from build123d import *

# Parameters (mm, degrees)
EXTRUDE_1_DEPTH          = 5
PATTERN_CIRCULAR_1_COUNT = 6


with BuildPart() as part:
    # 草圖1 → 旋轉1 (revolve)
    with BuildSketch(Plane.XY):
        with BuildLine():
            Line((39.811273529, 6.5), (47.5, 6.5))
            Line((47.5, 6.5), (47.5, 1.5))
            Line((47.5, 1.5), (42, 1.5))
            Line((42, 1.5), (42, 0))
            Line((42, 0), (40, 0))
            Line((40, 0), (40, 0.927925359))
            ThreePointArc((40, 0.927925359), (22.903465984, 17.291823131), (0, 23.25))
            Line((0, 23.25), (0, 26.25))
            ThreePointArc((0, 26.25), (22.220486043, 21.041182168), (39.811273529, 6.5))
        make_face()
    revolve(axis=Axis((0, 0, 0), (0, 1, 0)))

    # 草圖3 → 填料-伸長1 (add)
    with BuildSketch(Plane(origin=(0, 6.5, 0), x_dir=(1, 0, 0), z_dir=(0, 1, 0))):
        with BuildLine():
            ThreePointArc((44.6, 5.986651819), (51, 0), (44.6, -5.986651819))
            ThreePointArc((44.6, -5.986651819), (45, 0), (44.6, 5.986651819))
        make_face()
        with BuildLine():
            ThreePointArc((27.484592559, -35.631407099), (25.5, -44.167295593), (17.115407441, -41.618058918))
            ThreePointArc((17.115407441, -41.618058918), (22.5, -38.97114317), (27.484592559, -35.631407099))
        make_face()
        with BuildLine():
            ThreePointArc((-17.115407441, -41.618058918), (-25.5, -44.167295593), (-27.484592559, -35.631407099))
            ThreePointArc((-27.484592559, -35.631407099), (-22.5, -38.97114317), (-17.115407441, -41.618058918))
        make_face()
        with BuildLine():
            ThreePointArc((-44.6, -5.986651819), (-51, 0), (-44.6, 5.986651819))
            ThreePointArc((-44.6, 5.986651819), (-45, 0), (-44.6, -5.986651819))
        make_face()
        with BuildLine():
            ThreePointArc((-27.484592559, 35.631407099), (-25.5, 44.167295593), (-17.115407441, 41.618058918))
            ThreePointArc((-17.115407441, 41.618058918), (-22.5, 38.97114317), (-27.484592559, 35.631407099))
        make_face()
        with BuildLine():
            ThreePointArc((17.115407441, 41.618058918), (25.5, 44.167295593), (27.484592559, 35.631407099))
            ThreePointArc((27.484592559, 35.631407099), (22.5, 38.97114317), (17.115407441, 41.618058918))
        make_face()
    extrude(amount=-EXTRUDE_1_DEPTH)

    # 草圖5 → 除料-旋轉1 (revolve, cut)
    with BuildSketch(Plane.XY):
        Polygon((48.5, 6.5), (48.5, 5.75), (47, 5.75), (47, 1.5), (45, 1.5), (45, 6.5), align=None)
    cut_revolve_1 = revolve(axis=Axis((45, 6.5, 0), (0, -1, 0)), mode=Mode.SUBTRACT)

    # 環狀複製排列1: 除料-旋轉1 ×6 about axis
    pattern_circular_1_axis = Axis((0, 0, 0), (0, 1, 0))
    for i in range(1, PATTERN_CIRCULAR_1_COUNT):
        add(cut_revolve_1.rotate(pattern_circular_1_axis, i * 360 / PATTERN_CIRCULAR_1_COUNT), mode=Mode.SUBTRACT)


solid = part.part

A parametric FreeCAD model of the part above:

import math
import FreeCAD as App
import Part
import Sketcher
Q = App.Units.Quantity

doc = App.newDocument("Part")
params = doc.addObject("Spreadsheet::Sheet", "Params")
for row, (alias, value) in enumerate([
    ("sketch1_radius", "50 mm"),
    ("sketch1_radius2", "47 mm"),
    ("sketch1_width", "2 mm"),
    ("sketch1_height", "5 mm"),
    ("sketch1_width2", "5.5 mm"),
    ("revolution_angle", "360 deg"),
    ("sketch2_radius", "6 mm"),
    ("sketch2_radius2", "45 mm"),
    ("pad1_length", "5 mm"),
    ("sketch3_width", "2 mm"),
    ("sketch3_height", "5 mm"),
    ("sketch3_width2", "3.5 mm"),
    ("sketch3_height2", "0.75 mm"),
    ("groove_angle", "360 deg"),
], start=1):
    params.set(f"A{row}", alias)
    params.set(f"B{row}", "=" + value)
    params.setAlias(f"B{row}", alias)

body = doc.addObject("PartDesign::Body", "Body")

# Sketch on XY plane
sketch1 = body.newObject("Sketcher::SketchObject", "Sketch")
sketch1.AttachmentSupport = (doc.getObject("XY_Plane"), [""])
sketch1.MapMode = "FlatFace"
sketch1.addGeometry(Part.LineSegment(App.Vector(47.5, 6.5, 0), App.Vector(39.8, 6.5, 0)), False)
sketch1.addGeometry(Part.ArcOfCircle(Part.Circle(App.Vector(0, -23.8, 0), App.Vector(0, 0, 1), 50), math.radians(37), math.radians(90)), False)
sketch1.addGeometry(Part.LineSegment(App.Vector(0, 26.2, 0), App.Vector(0, 23.2, 0)), False)
sketch1.addGeometry(Part.ArcOfCircle(Part.Circle(App.Vector(0, -23.8, 0), App.Vector(0, 0, 1), 47), math.radians(32), math.radians(90)), False)
sketch1.addGeometry(Part.LineSegment(App.Vector(40, 0.9, 0), App.Vector(40, 0, 0)), False)
sketch1.addGeometry(Part.LineSegment(App.Vector(40, 0, 0), App.Vector(42, 0, 0)), False)
sketch1.addGeometry(Part.LineSegment(App.Vector(42, 0, 0), App.Vector(42, 1.5, 0)), False)
sketch1.addGeometry(Part.LineSegment(App.Vector(42, 1.5, 0), App.Vector(47.5, 1.5, 0)), False)
sketch1.addGeometry(Part.LineSegment(App.Vector(47.5, 1.5, 0), App.Vector(47.5, 6.5, 0)), False)
sketch1.addConstraint(Sketcher.Constraint("Coincident", 0, 2, 1, 1))
sketch1.addConstraint(Sketcher.Constraint("Coincident", 1, 2, 2, 1))
sketch1.addConstraint(Sketcher.Constraint("Coincident", 2, 2, 3, 2))
sketch1.addConstraint(Sketcher.Constraint("Coincident", 3, 1, 4, 1))
sketch1.addConstraint(Sketcher.Constraint("Coincident", 4, 2, 5, 1))
sketch1.addConstraint(Sketcher.Constraint("Coincident", 5, 2, 6, 1))
sketch1.addConstraint(Sketcher.Constraint("Coincident", 6, 2, 7, 1))
sketch1.addConstraint(Sketcher.Constraint("Coincident", 7, 2, 8, 1))
sketch1.addConstraint(Sketcher.Constraint("Coincident", 8, 2, 0, 1))
sketch1.addConstraint(Sketcher.Constraint("Horizontal", 0))
sketch1.addConstraint(Sketcher.Constraint("Vertical", 2))
sketch1.addConstraint(Sketcher.Constraint("Vertical", 4))
sketch1.addConstraint(Sketcher.Constraint("Horizontal", 5))
sketch1.addConstraint(Sketcher.Constraint("Vertical", 6))
sketch1.addConstraint(Sketcher.Constraint("Horizontal", 7))
sketch1.addConstraint(Sketcher.Constraint("Vertical", 8))
sketch1.addConstraint(Sketcher.Constraint("Coincident", 3, 3, 1, 3))
sketch1.addConstraint(Sketcher.Constraint("PointOnObject", 1, 3, -2))
sketch1.addConstraint(Sketcher.Constraint("PointOnObject", 1, 2, -2))
sketch1.addConstraint(Sketcher.Constraint("PointOnObject", 4, 2, -1))
sketch1.addConstraint(Sketcher.Constraint("Radius", 1, Q("50 mm")))
sketch1.addConstraint(Sketcher.Constraint("Radius", 3, Q("47 mm")))
sketch1.addConstraint(Sketcher.Constraint("DistanceX", 5, 1, 5, 2, Q("2 mm")))
sketch1.addConstraint(Sketcher.Constraint("DistanceY", 8, 1, 8, 2, Q("5 mm")))
sketch1.addConstraint(Sketcher.Constraint("DistanceX", 7, 1, 7, 2, Q("5.5 mm")))
sketch1.addConstraint(Sketcher.Constraint("DistanceY", 6, 1, 6, 2, Q("1.5 mm")))
sketch1.addConstraint(Sketcher.Constraint("DistanceX", -1, 1, 3, 1, Q("40 mm")))
sketch1.addConstraint(Sketcher.Constraint("DistanceY", 1, 3, -1, 1, Q("23.75 mm")))
sketch1.setExpression("Constraints[20]", "Params.sketch1_radius")
sketch1.setExpression("Constraints[21]", "Params.sketch1_radius2")
sketch1.setExpression("Constraints[22]", "Params.sketch1_width")
sketch1.setExpression("Constraints[23]", "Params.sketch1_height")
sketch1.setExpression("Constraints[24]", "Params.sketch1_width2")
revolution = body.newObject("PartDesign::Revolution", "Revolution")
revolution.Profile = sketch1
revolution.ReferenceAxis = (sketch1, ["V_Axis"])
revolution.setExpression("Angle", "Params.revolution_angle")

# Sketch on XZ plane
sketch2 = body.newObject("Sketcher::SketchObject", "Sketch001")
sketch2.AttachmentSupport = (doc.getObject("XZ_Plane"), [""])
sketch2.MapMode = "FlatFace"
sketch2.AttachmentOffset = App.Placement(App.Vector(0, 0, -6.5), App.Rotation())
sketch2.addGeometry(Part.ArcOfCircle(Part.Circle(App.Vector(45, 0, 0), App.Vector(0, 0, 1), 6), math.radians(-94), math.radians(94)), False)
sketch2.addGeometry(Part.ArcOfCircle(Part.Circle(App.Vector(0, 0, 0), App.Vector(0, 0, 1), 45), math.radians(-7.65), math.radians(7.65)), False)
sketch2.addGeometry(Part.ArcOfCircle(Part.Circle(App.Vector(22, 39, 0), App.Vector(0, 0, 1), 6), math.radians(-34), math.radians(154)), False)
sketch2.addGeometry(Part.ArcOfCircle(Part.Circle(App.Vector(0, 0, 0), App.Vector(0, 0, 1), 45), math.radians(52.35), math.radians(67.65)), False)
sketch2.addGeometry(Part.ArcOfCircle(Part.Circle(App.Vector(-22, 39, 0), App.Vector(0, 0, 1), 6), math.radians(26), math.radians(214)), False)
sketch2.addGeometry(Part.ArcOfCircle(Part.Circle(App.Vector(0, 0, 0), App.Vector(0, 0, 1), 45), math.radians(112.35), math.radians(127.65)), False)
sketch2.addGeometry(Part.ArcOfCircle(Part.Circle(App.Vector(-45, 0, 0), App.Vector(0, 0, 1), 6), math.radians(86), math.radians(274)), False)
sketch2.addGeometry(Part.ArcOfCircle(Part.Circle(App.Vector(0, 0, 0), App.Vector(0, 0, 1), 45), math.radians(172.35), math.radians(187.65)), False)
sketch2.addGeometry(Part.ArcOfCircle(Part.Circle(App.Vector(-22, -39, 0), App.Vector(0, 0, 1), 6), math.radians(146), math.radians(334)), False)
sketch2.addGeometry(Part.ArcOfCircle(Part.Circle(App.Vector(0, 0, 0), App.Vector(0, 0, 1), 45), math.radians(-127.65), math.radians(-112.35)), False)
sketch2.addGeometry(Part.ArcOfCircle(Part.Circle(App.Vector(22, -39, 0), App.Vector(0, 0, 1), 6), math.radians(-154), math.radians(34)), False)
sketch2.addGeometry(Part.ArcOfCircle(Part.Circle(App.Vector(0, 0, 0), App.Vector(0, 0, 1), 45), math.radians(-67.65), math.radians(-52.35)), False)
sketch2.addConstraint(Sketcher.Constraint("Coincident", 0, 1, 1, 1))
sketch2.addConstraint(Sketcher.Constraint("Coincident", 1, 2, 0, 2))
sketch2.addConstraint(Sketcher.Constraint("Coincident", 2, 1, 3, 1))
sketch2.addConstraint(Sketcher.Constraint("Coincident", 3, 2, 2, 2))
sketch2.addConstraint(Sketcher.Constraint("Coincident", 4, 1, 5, 1))
sketch2.addConstraint(Sketcher.Constraint("Coincident", 5, 2, 4, 2))
sketch2.addConstraint(Sketcher.Constraint("Coincident", 6, 1, 7, 1))
sketch2.addConstraint(Sketcher.Constraint("Coincident", 7, 2, 6, 2))
sketch2.addConstraint(Sketcher.Constraint("Coincident", 8, 1, 9, 1))
sketch2.addConstraint(Sketcher.Constraint("Coincident", 9, 2, 8, 2))
sketch2.addConstraint(Sketcher.Constraint("Coincident", 10, 1, 11, 1))
sketch2.addConstraint(Sketcher.Constraint("Coincident", 11, 2, 10, 2))
sketch2.addConstraint(Sketcher.Constraint("Coincident", 1, 3, -1, 1))
sketch2.addConstraint(Sketcher.Constraint("Coincident", 3, 3, -1, 1))
sketch2.addConstraint(Sketcher.Constraint("Coincident", 5, 3, -1, 1))
sketch2.addConstraint(Sketcher.Constraint("Coincident", 7, 3, -1, 1))
sketch2.addConstraint(Sketcher.Constraint("Coincident", 9, 3, -1, 1))
sketch2.addConstraint(Sketcher.Constraint("Coincident", 11, 3, -1, 1))
sketch2.addConstraint(Sketcher.Constraint("Equal", 0, 2))
sketch2.addConstraint(Sketcher.Constraint("Equal", 1, 3))
sketch2.addConstraint(Sketcher.Constraint("Equal", 2, 4))
sketch2.addConstraint(Sketcher.Constraint("Equal", 3, 5))
sketch2.addConstraint(Sketcher.Constraint("Equal", 4, 6))
sketch2.addConstraint(Sketcher.Constraint("Equal", 5, 7))
sketch2.addConstraint(Sketcher.Constraint("Equal", 6, 8))
sketch2.addConstraint(Sketcher.Constraint("Equal", 7, 9))
sketch2.addConstraint(Sketcher.Constraint("Equal", 8, 10))
sketch2.addConstraint(Sketcher.Constraint("Equal", 9, 11))
sketch2.addConstraint(Sketcher.Constraint("Symmetric", 0, 3, 6, 3, -1, 1))
sketch2.addConstraint(Sketcher.Constraint("Symmetric", 2, 3, 8, 3, -1, 1))
sketch2.addConstraint(Sketcher.Constraint("Symmetric", 4, 3, 10, 3, -1, 1))
sketch2.addConstraint(Sketcher.Constraint("Symmetric", 2, 3, 4, 3, -2))
sketch2.addConstraint(Sketcher.Constraint("PointOnObject", 0, 3, -1))
sketch2.addConstraint(Sketcher.Constraint("Radius", 0, Q("6 mm")))
sketch2.addConstraint(Sketcher.Constraint("Radius", 1, Q("45 mm")))
sketch2.addConstraint(Sketcher.Constraint("DistanceX", -1, 1, 0, 3, Q("45 mm")))
sketch2.addConstraint(Sketcher.Constraint("DistanceX", 4, 3, 2, 3, Q("45 mm")))
sketch2.addConstraint(Sketcher.Constraint("DistanceY", -1, 1, 3, 2, Q("41.618059 mm")))
sketch2.setExpression("Constraints[33]", "Params.sketch2_radius")
sketch2.setExpression("Constraints[34]", "Params.sketch2_radius2")
pad1 = body.newObject("PartDesign::Pad", "Pad")
pad1.Profile = sketch2
pad1.setExpression("Length", "Params.pad1_length")

# Sketch on XY plane
sketch3 = body.newObject("Sketcher::SketchObject", "Sketch002")
sketch3.AttachmentSupport = (doc.getObject("XY_Plane"), [""])
sketch3.MapMode = "FlatFace"
sketch3.addGeometry(Part.LineSegment(App.Vector(48.5, 5.8, 0), App.Vector(48.5, 6.5, 0)), False)
sketch3.addGeometry(Part.LineSegment(App.Vector(48.5, 6.5, 0), App.Vector(45, 6.5, 0)), False)
sketch3.addGeometry(Part.LineSegment(App.Vector(45, 6.5, 0), App.Vector(45, 1.5, 0)), False)
sketch3.addGeometry(Part.LineSegment(App.Vector(45, 1.5, 0), App.Vector(47, 1.5, 0)), False)
sketch3.addGeometry(Part.LineSegment(App.Vector(47, 1.5, 0), App.Vector(47, 5.8, 0)), False)
sketch3.addGeometry(Part.LineSegment(App.Vector(47, 5.8, 0), App.Vector(48.5, 5.8, 0)), False)
sketch3.addGeometry(Part.LineSegment(App.Vector(45, 6.5, 0), App.Vector(45, 1.5, 0)), True)  # axis
sketch3.addConstraint(Sketcher.Constraint("Coincident", 0, 2, 1, 1))
sketch3.addConstraint(Sketcher.Constraint("Coincident", 1, 2, 2, 1))
sketch3.addConstraint(Sketcher.Constraint("Coincident", 2, 2, 3, 1))
sketch3.addConstraint(Sketcher.Constraint("Coincident", 3, 2, 4, 1))
sketch3.addConstraint(Sketcher.Constraint("Coincident", 4, 2, 5, 1))
sketch3.addConstraint(Sketcher.Constraint("Coincident", 5, 2, 0, 1))
sketch3.addConstraint(Sketcher.Constraint("Vertical", 0))
sketch3.addConstraint(Sketcher.Constraint("Horizontal", 1))
sketch3.addConstraint(Sketcher.Constraint("Vertical", 2))
sketch3.addConstraint(Sketcher.Constraint("Horizontal", 3))
sketch3.addConstraint(Sketcher.Constraint("Vertical", 4))
sketch3.addConstraint(Sketcher.Constraint("Horizontal", 5))
sketch3.addConstraint(Sketcher.Constraint("Vertical", 6))
sketch3.addConstraint(Sketcher.Constraint("Coincident", 6, 1, 1, 2))
sketch3.addConstraint(Sketcher.Constraint("Horizontal", 3, 2, 6, 2))
sketch3.addConstraint(Sketcher.Constraint("DistanceX", 3, 1, 3, 2, Q("2 mm")))
sketch3.addConstraint(Sketcher.Constraint("DistanceY", 2, 2, 2, 1, Q("5 mm")))
sketch3.addConstraint(Sketcher.Constraint("DistanceX", 1, 2, 1, 1, Q("3.5 mm")))
sketch3.addConstraint(Sketcher.Constraint("DistanceX", -1, 1, 1, 2, Q("45 mm")))
sketch3.addConstraint(Sketcher.Constraint("DistanceY", 0, 1, 0, 2, Q("0.75 mm")))
sketch3.addConstraint(Sketcher.Constraint("DistanceY", -1, 1, 0, 2, Q("6.5 mm")))
sketch3.setExpression("Constraints[15]", "Params.sketch3_width")
sketch3.setExpression("Constraints[16]", "Params.sketch3_height")
sketch3.setExpression("Constraints[17]", "Params.sketch3_width2")
sketch3.setExpression("Constraints[19]", "Params.sketch3_height2")
groove = body.newObject("PartDesign::Groove", "Groove")
groove.Profile = sketch3
groove.ReferenceAxis = (sketch3, ["Axis0"])
groove.setExpression("Angle", "Params.groove_angle")
doc.recompute()

polarpattern = body.newObject("PartDesign::PolarPattern", "PolarPattern")
polarpattern.Originals = [groove]
polarpattern.Axis = (doc.getObject("Y_Axis"), [""])
polarpattern.Angle = 360
polarpattern.Occurrences = 6
body.Tip = polarpattern

doc.recompute()
